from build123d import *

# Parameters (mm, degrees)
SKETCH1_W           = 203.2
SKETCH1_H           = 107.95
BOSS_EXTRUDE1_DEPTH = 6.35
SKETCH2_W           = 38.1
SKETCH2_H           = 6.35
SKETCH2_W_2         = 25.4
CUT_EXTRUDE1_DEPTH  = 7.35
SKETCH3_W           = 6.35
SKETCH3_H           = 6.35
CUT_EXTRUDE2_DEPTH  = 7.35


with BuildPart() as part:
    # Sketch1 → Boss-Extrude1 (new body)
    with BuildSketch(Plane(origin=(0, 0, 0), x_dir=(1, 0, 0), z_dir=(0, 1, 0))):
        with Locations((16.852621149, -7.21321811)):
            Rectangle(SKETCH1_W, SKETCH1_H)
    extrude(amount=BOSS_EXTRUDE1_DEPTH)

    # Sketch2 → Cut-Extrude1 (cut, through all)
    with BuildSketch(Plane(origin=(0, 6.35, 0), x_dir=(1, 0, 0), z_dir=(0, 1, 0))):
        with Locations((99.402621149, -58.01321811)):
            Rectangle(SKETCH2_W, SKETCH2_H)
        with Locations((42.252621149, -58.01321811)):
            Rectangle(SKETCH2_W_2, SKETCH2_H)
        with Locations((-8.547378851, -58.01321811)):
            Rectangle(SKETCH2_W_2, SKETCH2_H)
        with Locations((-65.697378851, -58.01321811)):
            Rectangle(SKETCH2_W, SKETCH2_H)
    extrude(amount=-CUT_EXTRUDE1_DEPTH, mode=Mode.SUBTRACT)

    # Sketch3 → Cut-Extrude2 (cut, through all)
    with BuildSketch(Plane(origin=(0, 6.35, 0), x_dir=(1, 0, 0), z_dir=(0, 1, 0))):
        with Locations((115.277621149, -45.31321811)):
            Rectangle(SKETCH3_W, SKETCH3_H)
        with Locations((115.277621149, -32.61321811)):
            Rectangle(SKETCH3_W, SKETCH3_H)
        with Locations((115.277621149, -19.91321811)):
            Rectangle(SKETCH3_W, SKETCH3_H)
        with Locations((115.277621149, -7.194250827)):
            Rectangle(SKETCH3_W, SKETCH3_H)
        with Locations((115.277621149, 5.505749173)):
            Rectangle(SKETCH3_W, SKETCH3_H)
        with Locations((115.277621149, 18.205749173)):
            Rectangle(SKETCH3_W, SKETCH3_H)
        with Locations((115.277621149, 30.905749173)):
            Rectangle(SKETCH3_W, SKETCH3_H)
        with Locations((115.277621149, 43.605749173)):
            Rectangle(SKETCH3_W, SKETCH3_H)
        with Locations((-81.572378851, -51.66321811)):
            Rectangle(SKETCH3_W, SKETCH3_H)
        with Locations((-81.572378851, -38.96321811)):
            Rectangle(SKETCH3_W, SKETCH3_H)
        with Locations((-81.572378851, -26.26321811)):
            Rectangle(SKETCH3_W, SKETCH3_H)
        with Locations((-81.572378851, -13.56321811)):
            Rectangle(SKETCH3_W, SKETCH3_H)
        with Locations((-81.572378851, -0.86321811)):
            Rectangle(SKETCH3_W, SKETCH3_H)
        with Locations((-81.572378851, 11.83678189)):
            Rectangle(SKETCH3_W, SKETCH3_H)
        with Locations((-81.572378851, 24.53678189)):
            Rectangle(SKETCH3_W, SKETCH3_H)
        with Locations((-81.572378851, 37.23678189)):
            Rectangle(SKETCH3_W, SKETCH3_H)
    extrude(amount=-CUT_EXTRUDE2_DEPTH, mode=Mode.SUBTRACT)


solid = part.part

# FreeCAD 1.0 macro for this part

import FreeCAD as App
import Part
import Sketcher
from FreeCAD import Vector
Q = App.Units.Quantity

doc = App.newDocument("Part")
body = doc.addObject("PartDesign::Body", "Body")

# Sketch on XZ plane
sketch1 = doc.addObject("Sketcher::SketchObject", "Sketch")
body.addObject(sketch1)
sketch1.AttachmentSupport = (doc.XZ_Plane, [""])
sketch1.MapMode = "FlatFace"
sketch1.addGeometry([
    Part.LineSegment(Vector(-85, -47, 0), Vector(-85, 61, 0)),
    Part.LineSegment(Vector(-85, 61, 0), Vector(118, 61, 0)),
    Part.LineSegment(Vector(118, 61, 0), Vector(118, -47, 0)),
    Part.LineSegment(Vector(118, -47, 0), Vector(-85, -47, 0)),
], False)
sketch1.addConstraint([
    Sketcher.Constraint("Coincident", 0, 2, 1, 1),
    Sketcher.Constraint("Coincident", 1, 2, 2, 1),
    Sketcher.Constraint("Coincident", 2, 2, 3, 1),
    Sketcher.Constraint("Coincident", 3, 2, 0, 1),
    Sketcher.Constraint("Vertical", 0),
    Sketcher.Constraint("Horizontal", 1),
    Sketcher.Constraint("Vertical", 2),
    Sketcher.Constraint("Horizontal", 3),
    Sketcher.Constraint("DistanceX", 1, 1, 1, 2, Q("8 in")),
    Sketcher.Constraint("DistanceY", 0, 1, 0, 2, Q("4.25 in")),
    Sketcher.Constraint("DistanceX", 0, 2, -1, 1, 84.747379),
    Sketcher.Constraint("DistanceY", -1, 1, 0, 2, 61.188218),
])
pad1 = doc.addObject("PartDesign::Pad", "Pad")
body.addObject(pad1)
pad1.Profile = sketch1
pad1.Length = Q("0.25 in")
pad1.Reversed = True

# Sketch on XZ plane
sketch2 = doc.addObject("Sketcher::SketchObject", "Sketch001")
body.addObject(sketch2)
sketch2.AttachmentSupport = (doc.XZ_Plane, [""])
sketch2.MapMode = "FlatFace"
sketch2.AttachmentOffset = App.Placement(Vector(0, 0, -0.25 * 25.4), App.Rotation())
sketch2.addGeometry([
    Part.LineSegment(Vector(80, 55, 0), Vector(80, 61, 0)),  # 0
    Part.LineSegment(Vector(80, 61, 0), Vector(118, 61, 0)),  # 1
    Part.LineSegment(Vector(118, 61, 0), Vector(118, 55, 0)),  # 2
    Part.LineSegment(Vector(118, 55, 0), Vector(80, 55, 0)),  # 3
    Part.LineSegment(Vector(30, 55, 0), Vector(30, 61, 0)),  # 4
    Part.LineSegment(Vector(30, 61, 0), Vector(55, 61, 0)),  # 5
    Part.LineSegment(Vector(55, 61, 0), Vector(55, 55, 0)),  # 6
    Part.LineSegment(Vector(55, 55, 0), Vector(30, 55, 0)),  # 7
    Part.LineSegment(Vector(-21, 55, 0), Vector(-21, 61, 0)),  # 8
    Part.LineSegment(Vector(-21, 61, 0), Vector(4, 61, 0)),  # 9
    Part.LineSegment(Vector(4, 61, 0), Vector(4, 55, 0)),  # 10
    Part.LineSegment(Vector(4, 55, 0), Vector(-21, 55, 0)),  # 11
    Part.LineSegment(Vector(-85, 55, 0), Vector(-85, 61, 0)),  # 12
    Part.LineSegment(Vector(-85, 61, 0), Vector(-47, 61, 0)),  # 13
    Part.LineSegment(Vector(-47, 61, 0), Vector(-47, 55, 0)),  # 14
    Part.LineSegment(Vector(-47, 55, 0), Vector(-85, 55, 0)),  # 15
], False)
sketch2.addConstraint([
    Sketcher.Constraint("Coincident", 0, 2, 1, 1),
    Sketcher.Constraint("Coincident", 1, 2, 2, 1),
    Sketcher.Constraint("Coincident", 2, 2, 3, 1),
    Sketcher.Constraint("Coincident", 3, 2, 0, 1),
    Sketcher.Constraint("Coincident", 4, 2, 5, 1),
    Sketcher.Constraint("Coincident", 5, 2, 6, 1),
    Sketcher.Constraint("Coincident", 6, 2, 7, 1),
    Sketcher.Constraint("Coincident", 7, 2, 4, 1),
    Sketcher.Constraint("Coincident", 8, 2, 9, 1),
    Sketcher.Constraint("Coincident", 9, 2, 10, 1),
    Sketcher.Constraint("Coincident", 10, 2, 11, 1),
    Sketcher.Constraint("Coincident", 11, 2, 8, 1),
    Sketcher.Constraint("Coincident", 12, 2, 13, 1),
    Sketcher.Constraint("Coincident", 13, 2, 14, 1),
    Sketcher.Constraint("Coincident", 14, 2, 15, 1),
    Sketcher.Constraint("Coincident", 15, 2, 12, 1),
    Sketcher.Constraint("Vertical", 0),
    Sketcher.Constraint("Horizontal", 1),
    Sketcher.Constraint("Vertical", 2),
    Sketcher.Constraint("Horizontal", 3),
    Sketcher.Constraint("Vertical", 4),
    Sketcher.Constraint("Horizontal", 5),
    Sketcher.Constraint("Vertical", 6),
    Sketcher.Constraint("Horizontal", 7),
    Sketcher.Constraint("Vertical", 8),
    Sketcher.Constraint("Horizontal", 9),
    Sketcher.Constraint("Vertical", 10),
    Sketcher.Constraint("Horizontal", 11),
    Sketcher.Constraint("Vertical", 12),
    Sketcher.Constraint("Horizontal", 13),
    Sketcher.Constraint("Vertical", 14),
    Sketcher.Constraint("Horizontal", 15),
    Sketcher.Constraint("Horizontal", 1, 2, 4, 2),
    Sketcher.Constraint("Horizontal", 3, 2, 6, 2),
    Sketcher.Constraint("Horizontal", 5, 2, 8, 2),
    Sketcher.Constraint("Horizontal", 7, 2, 10, 2),
    Sketcher.Constraint("Horizontal", 9, 2, 12, 2),
    Sketcher.Constraint("Horizontal", 11, 2, 14, 2),
    Sketcher.Constraint("Equal", 7, 9),
    Sketcher.Constraint("Equal", 3, 13),
    Sketcher.Constraint("DistanceX", 5, 1, 5, 2, Q("1 in")),
    Sketcher.Constraint("DistanceX", 1, 1, 1, 2, Q("1.5 in")),
    Sketcher.Constraint("DistanceX", 4, 2, 0, 2, Q("2 in")),
    Sketcher.Constraint("DistanceX", 8, 2, 4, 2, Q("2 in")),
    Sketcher.Constraint("DistanceX", 13, 2, 8, 2, Q("1 in")),
    Sketcher.Constraint("DistanceY", 0, 1, 0, 2, Q("0.25 in")),
    Sketcher.Constraint("DistanceX", -1, 1, 0, 2, 80.352621),
    Sketcher.Constraint("DistanceY", -1, 1, 0, 2, 61.188218),
])
pocket1 = doc.addObject("PartDesign::Pocket", "Pocket")
body.addObject(pocket1)
pocket1.Profile = sketch2
pocket1.Type = "ThroughAll"
pocket1.Reversed = True

# Sketch on XZ plane
sketch3 = doc.addObject("Sketcher::SketchObject", "Sketch002")
body.addObject(sketch3)
sketch3.AttachmentSupport = (doc.XZ_Plane, [""])
sketch3.MapMode = "FlatFace"
sketch3.AttachmentOffset = App.Placement(Vector(0, 0, -0.25 * 25.4), App.Rotation())
sketch3.addGeometry([
    Part.LineSegment(Vector(112, 42, 0), Vector(112, 48, 0)),  # 0
    Part.LineSegment(Vector(112, 48, 0), Vector(118, 48, 0)),  # 1
    Part.LineSegment(Vector(118, 48, 0), Vector(118, 42, 0)),  # 2
    Part.LineSegment(Vector(118, 42, 0), Vector(112, 42, 0)),  # 3
    Part.LineSegment(Vector(112, 29, 0), Vector(112, 36, 0)),  # 4
    Part.LineSegment(Vector(112, 36, 0), Vector(118, 36, 0)),  # 5
    Part.LineSegment(Vector(118, 36, 0), Vector(118, 29, 0)),  # 6
    Part.LineSegment(Vector(118, 29, 0), Vector(112, 29, 0)),  # 7
    Part.LineSegment(Vector(112, 17, 0), Vector(112, 23, 0)),  # 8
    Part.LineSegment(Vector(112, 23, 0), Vector(118, 23, 0)),  # 9
    Part.LineSegment(Vector(118, 23, 0), Vector(118, 17, 0)),  # 10
    Part.LineSegment(Vector(118, 17, 0), Vector(112, 17, 0)),  # 11
    Part.LineSegment(Vector(112, 4, 0), Vector(112, 10, 0)),  # 12
    Part.LineSegment(Vector(112, 10, 0), Vector(118, 10, 0)),  # 13
    Part.LineSegment(Vector(118, 10, 0), Vector(118, 4, 0)),  # 14
    Part.LineSegment(Vector(118, 4, 0), Vector(112, 4, 0)),  # 15
    Part.LineSegment(Vector(112, -9, 0), Vector(112, -2, 0)),  # 16
    Part.LineSegment(Vector(112, -2, 0), Vector(118, -2, 0)),  # 17
    Part.LineSegment(Vector(118, -2, 0), Vector(118, -9, 0)),  # 18
    Part.LineSegment(Vector(118, -9, 0), Vector(112, -9, 0)),  # 19
    Part.LineSegment(Vector(112, -21, 0), Vector(112, -15, 0)),  # 20
    Part.LineSegment(Vector(112, -15, 0), Vector(118, -15, 0)),  # 21
    Part.LineSegment(Vector(118, -15, 0), Vector(118, -21, 0)),  # 22
    Part.LineSegment(Vector(118, -21, 0), Vector(112, -21, 0)),  # 23
    Part.LineSegment(Vector(112, -34, 0), Vector(112, -28, 0)),  # 24
    Part.LineSegment(Vector(112, -28, 0), Vector(118, -28, 0)),  # 25
    Part.LineSegment(Vector(118, -28, 0), Vector(118, -34, 0)),  # 26
    Part.LineSegment(Vector(118, -34, 0), Vector(112, -34, 0)),  # 27
    Part.LineSegment(Vector(112, -47, 0), Vector(112, -40, 0)),  # 28
    Part.LineSegment(Vector(112, -40, 0), Vector(118, -40, 0)),  # 29
    Part.LineSegment(Vector(118, -40, 0), Vector(118, -47, 0)),  # 30
    Part.LineSegment(Vector(118, -47, 0), Vector(112, -47, 0)),  # 31
    Part.LineSegment(Vector(-85, 48, 0), Vector(-85, 55, 0)),  # 32
    Part.LineSegment(Vector(-85, 55, 0), Vector(-78, 55, 0)),  # 33
    Part.LineSegment(Vector(-78, 55, 0), Vector(-78, 48, 0)),  # 34
    Part.LineSegment(Vector(-78, 48, 0), Vector(-85, 48, 0)),  # 35
    Part.LineSegment(Vector(-85, 36, 0), Vector(-85, 42, 0)),  # 36
    Part.LineSegment(Vector(-85, 42, 0), Vector(-78, 42, 0)),  # 37
    Part.LineSegment(Vector(-78, 42, 0), Vector(-78, 36, 0)),  # 38
    Part.LineSegment(Vector(-78, 36, 0), Vector(-85, 36, 0)),  # 39
    Part.LineSegment(Vector(-85, 23, 0), Vector(-85, 29, 0)),  # 40
    Part.LineSegment(Vector(-85, 29, 0), Vector(-78, 29, 0)),  # 41
    Part.LineSegment(Vector(-78, 29, 0), Vector(-78, 23, 0)),  # 42
    Part.LineSegment(Vector(-78, 23, 0), Vector(-85, 23, 0)),  # 43
    Part.LineSegment(Vector(-85, 10, 0), Vector(-85, 17, 0)),  # 44
    Part.LineSegment(Vector(-85, 17, 0), Vector(-78, 17, 0)),  # 45
    Part.LineSegment(Vector(-78, 17, 0), Vector(-78, 10, 0)),  # 46
    Part.LineSegment(Vector(-78, 10, 0), Vector(-85, 10, 0)),  # 47
    Part.LineSegment(Vector(-85, -2, 0), Vector(-85, 4, 0)),  # 48
    Part.LineSegment(Vector(-85, 4, 0), Vector(-78, 4, 0)),  # 49
    Part.LineSegment(Vector(-78, 4, 0), Vector(-78, -2, 0)),  # 50
    Part.LineSegment(Vector(-78, -2, 0), Vector(-85, -2, 0)),  # 51
    Part.LineSegment(Vector(-85, -15, 0), Vector(-85, -9, 0)),  # 52
    Part.LineSegment(Vector(-85, -9, 0), Vector(-78, -9, 0)),  # 53
    Part.LineSegment(Vector(-78, -9, 0), Vector(-78, -15, 0)),  # 54
    Part.LineSegment(Vector(-78, -15, 0), Vector(-85, -15, 0)),  # 55
    Part.LineSegment(Vector(-85, -28, 0), Vector(-85, -21, 0)),  # 56
    Part.LineSegment(Vector(-85, -21, 0), Vector(-78, -21, 0)),  # 57
    Part.LineSegment(Vector(-78, -21, 0), Vector(-78, -28, 0)),  # 58
    Part.LineSegment(Vector(-78, -28, 0), Vector(-85, -28, 0)),  # 59
    Part.LineSegment(Vector(-85, -40, 0), Vector(-85, -34, 0)),  # 60
    Part.LineSegment(Vector(-85, -34, 0), Vector(-78, -34, 0)),  # 61
    Part.LineSegment(Vector(-78, -34, 0), Vector(-78, -40, 0)),  # 62
    Part.LineSegment(Vector(-78, -40, 0), Vector(-85, -40, 0)),  # 63
], False)
sketch3.addConstraint([
    Sketcher.Constraint("Coincident", 0, 2, 1, 1),
    Sketcher.Constraint("Coincident", 1, 2, 2, 1),
    Sketcher.Constraint("Coincident", 2, 2, 3, 1),
    Sketcher.Constraint("Coincident", 3, 2, 0, 1),
    Sketcher.Constraint("Coincident", 4, 2, 5, 1),
    Sketcher.Constraint("Coincident", 5, 2, 6, 1),
    Sketcher.Constraint("Coincident", 6, 2, 7, 1),
    Sketcher.Constraint("Coincident", 7, 2, 4, 1),
    Sketcher.Constraint("Coincident", 8, 2, 9, 1),
    Sketcher.Constraint("Coincident", 9, 2, 10, 1),
    Sketcher.Constraint("Coincident", 10, 2, 11, 1),
    Sketcher.Constraint("Coincident", 11, 2, 8, 1),
    Sketcher.Constraint("Coincident", 12, 2, 13, 1),
    Sketcher.Constraint("Coincident", 13, 2, 14, 1),
    Sketcher.Constraint("Coincident", 14, 2, 15, 1),
    Sketcher.Constraint("Coincident", 15, 2, 12, 1),
    Sketcher.Constraint("Coincident", 16, 2, 17, 1),
    Sketcher.Constraint("Coincident", 17, 2, 18, 1),
    Sketcher.Constraint("Coincident", 18, 2, 19, 1),
    Sketcher.Constraint("Coincident", 19, 2, 16, 1),
    Sketcher.Constraint("Coincident", 20, 2, 21, 1),
    Sketcher.Constraint("Coincident", 21, 2, 22, 1),
    Sketcher.Constraint("Coincident", 22, 2, 23, 1),
    Sketcher.Constraint("Coincident", 23, 2, 20, 1),
    Sketcher.Constraint("Coincident", 24, 2, 25, 1),
    Sketcher.Constraint("Coincident", 25, 2, 26, 1),
    Sketcher.Constraint("Coincident", 26, 2, 27, 1),
    Sketcher.Constraint("Coincident", 27, 2, 24, 1),
    Sketcher.Constraint("Coincident", 28, 2, 29, 1),
    Sketcher.Constraint("Coincident", 29, 2, 30, 1),
    Sketcher.Constraint("Coincident", 30, 2, 31, 1),
    Sketcher.Constraint("Coincident", 31, 2, 28, 1),
    Sketcher.Constraint("Coincident", 32, 2, 33, 1),
    Sketcher.Constraint("Coincident", 33, 2, 34, 1),
    Sketcher.Constraint("Coincident", 34, 2, 35, 1),
    Sketcher.Constraint("Coincident", 35, 2, 32, 1),
    Sketcher.Constraint("Coincident", 36, 2, 37, 1),
    Sketcher.Constraint("Coincident", 37, 2, 38, 1),
    Sketcher.Constraint("Coincident", 38, 2, 39, 1),
    Sketcher.Constraint("Coincident", 39, 2, 36, 1),
    Sketcher.Constraint("Coincident", 40, 2, 41, 1),
    Sketcher.Constraint("Coincident", 41, 2, 42, 1),
    Sketcher.Constraint("Coincident", 42, 2, 43, 1),
    Sketcher.Constraint("Coincident", 43, 2, 40, 1),
    Sketcher.Constraint("Coincident", 44, 2, 45, 1),
    Sketcher.Constraint("Coincident", 45, 2, 46, 1),
    Sketcher.Constraint("Coincident", 46, 2, 47, 1),
    Sketcher.Constraint("Coincident", 47, 2, 44, 1),
    Sketcher.Constraint("Coincident", 48, 2, 49, 1),
    Sketcher.Constraint("Coincident", 49, 2, 50, 1),
    Sketcher.Constraint("Coincident", 50, 2, 51, 1),
    Sketcher.Constraint("Coincident", 51, 2, 48, 1),
    Sketcher.Constraint("Coincident", 52, 2, 53, 1),
    Sketcher.Constraint("Coincident", 53, 2, 54, 1),
    Sketcher.Constraint("Coincident", 54, 2, 55, 1),
    Sketcher.Constraint("Coincident", 55, 2, 52, 1),
    Sketcher.Constraint("Coincident", 56, 2, 57, 1),
    Sketcher.Constraint("Coincident", 57, 2, 58, 1),
    Sketcher.Constraint("Coincident", 58, 2, 59, 1),
    Sketcher.Constraint("Coincident", 59, 2, 56, 1),
    Sketcher.Constraint("Coincident", 60, 2, 61, 1),
    Sketcher.Constraint("Coincident", 61, 2, 62, 1),
    Sketcher.Constraint("Coincident", 62, 2, 63, 1),
    Sketcher.Constraint("Coincident", 63, 2, 60, 1),
    Sketcher.Constraint("Vertical", 0),
    Sketcher.Constraint("Horizontal", 1),
    Sketcher.Constraint("Vertical", 2),
    Sketcher.Constraint("Horizontal", 3),
    Sketcher.Constraint("Vertical", 4),
    Sketcher.Constraint("Horizontal", 5),
    Sketcher.Constraint("Vertical", 6),
    Sketcher.Constraint("Horizontal", 7),
    Sketcher.Constraint("Vertical", 8),
    Sketcher.Constraint("Horizontal", 9),
    Sketcher.Constraint("Vertical", 10),
    Sketcher.Constraint("Horizontal", 11),
    Sketcher.Constraint("Vertical", 12),
    Sketcher.Constraint("Horizontal", 13),
    Sketcher.Constraint("Vertical", 14),
    Sketcher.Constraint("Horizontal", 15),
    Sketcher.Constraint("Vertical", 16),
    Sketcher.Constraint("Horizontal", 17),
    Sketcher.Constraint("Vertical", 18),
    Sketcher.Constraint("Horizontal", 19),
    Sketcher.Constraint("Vertical", 20),
    Sketcher.Constraint("Horizontal", 21),
    Sketcher.Constraint("Vertical", 22),
    Sketcher.Constraint("Horizontal", 23),
    Sketcher.Constraint("Vertical", 24),
    Sketcher.Constraint("Horizontal", 25),
    Sketcher.Constraint("Vertical", 26),
    Sketcher.Constraint("Horizontal", 27),
    Sketcher.Constraint("Vertical", 28),
    Sketcher.Constraint("Horizontal", 29),
    Sketcher.Constraint("Vertical", 30),
    Sketcher.Constraint("Horizontal", 31),
    Sketcher.Constraint("Vertical", 32),
    Sketcher.Constraint("Horizontal", 33),
    Sketcher.Constraint("Vertical", 34),
    Sketcher.Constraint("Horizontal", 35),
    Sketcher.Constraint("Vertical", 36),
    Sketcher.Constraint("Horizontal", 37),
    Sketcher.Constraint("Vertical", 38),
    Sketcher.Constraint("Horizontal", 39),
    Sketcher.Constraint("Vertical", 40),
    Sketcher.Constraint("Horizontal", 41),
    Sketcher.Constraint("Vertical", 42),
    Sketcher.Constraint("Horizontal", 43),
    Sketcher.Constraint("Vertical", 44),
    Sketcher.Constraint("Horizontal", 45),
    Sketcher.Constraint("Vertical", 46),
    Sketcher.Constraint("Horizontal", 47),
    Sketcher.Constraint("Vertical", 48),
    Sketcher.Constraint("Horizontal", 49),
    Sketcher.Constraint("Vertical", 50),
    Sketcher.Constraint("Horizontal", 51),
    Sketcher.Constraint("Vertical", 52),
    Sketcher.Constraint("Horizontal", 53),
    Sketcher.Constraint("Vertical", 54),
    Sketcher.Constraint("Horizontal", 55),
    Sketcher.Constraint("Vertical", 56),
    Sketcher.Constraint("Horizontal", 57),
    Sketcher.Constraint("Vertical", 58),
    Sketcher.Constraint("Horizontal", 59),
    Sketcher.Constraint("Vertical", 60),
    Sketcher.Constraint("Horizontal", 61),
    Sketcher.Constraint("Vertical", 62),
    Sketcher.Constraint("Horizontal", 63),
    Sketcher.Constraint("Horizontal", 1, 2, 34, 2),
    Sketcher.Constraint("Horizontal", 3, 2, 36, 2),
    Sketcher.Constraint("Horizontal", 5, 2, 38, 2),
    Sketcher.Constraint("Horizontal", 7, 2, 40, 2),
    Sketcher.Constraint("Horizontal", 9, 2, 42, 2),
    Sketcher.Constraint("Horizontal", 11, 2, 44, 2),
    Sketcher.Constraint("Vertical", 3, 2, 4, 2),
    Sketcher.Constraint("Vertical", 2, 2, 5, 2),
    Sketcher.Constraint("Vertical", 7, 2, 8, 2),
    Sketcher.Constraint("Vertical", 6, 2, 9, 2),
    Sketcher.Constraint("Vertical", 11, 2, 12, 2),
    Sketcher.Constraint("Vertical", 10, 2, 13, 2),
    Sketcher.Constraint("Vertical", 15, 2, 16, 2),
    Sketcher.Constraint("Vertical", 14, 2, 17, 2),
    Sketcher.Constraint("Vertical", 19, 2, 20, 2),
    Sketcher.Constraint("Vertical", 18, 2, 21, 2),
    Sketcher.Constraint("Vertical", 23, 2, 24, 2),
    Sketcher.Constraint("Vertical", 22, 2, 25, 2),
    Sketcher.Constraint("Vertical", 27, 2, 28, 2),
    Sketcher.Constraint("Vertical", 26, 2, 29, 2),
    Sketcher.Constraint("Vertical", 35, 2, 36, 2),
    Sketcher.Constraint("Vertical", 34, 2, 37, 2),
    Sketcher.Constraint("Vertical", 39, 2, 40, 2),
    Sketcher.Constraint("Vertical", 38, 2, 41, 2),
    Sketcher.Constraint("Vertical", 43, 2, 44, 2),
    Sketcher.Constraint("Vertical", 42, 2, 45, 2),
    Sketcher.Constraint("Vertical", 47, 2, 48, 2),
    Sketcher.Constraint("Vertical", 46, 2, 49, 2),
    Sketcher.Constraint("Vertical", 51, 2, 52, 2),
    Sketcher.Constraint("Vertical", 50, 2, 53, 2),
    Sketcher.Constraint("Vertical", 55, 2, 56, 2),
    Sketcher.Constraint("Vertical", 54, 2, 57, 2),
    Sketcher.Constraint("Vertical", 59, 2, 60, 2),
    Sketcher.Constraint("Vertical", 58, 2, 61, 2),
    Sketcher.Constraint("Equal", 31, 33),
    Sketcher.Constraint("Equal", 63, 0),
    Sketcher.Constraint("Equal", 2, 4),
    Sketcher.Constraint("Equal", 6, 8),
    Sketcher.Constraint("Equal", 10, 12),
    Sketcher.Constraint("Equal", 14, 16),
    Sketcher.Constraint("Equal", 18, 20),
    Sketcher.Constraint("Equal", 22, 24),
    Sketcher.Constraint("Equal", 26, 28),
    Sketcher.Constraint("Equal", 30, 32),
    Sketcher.Constraint("Equal", 34, 36),
    Sketcher.Constraint("Equal", 38, 40),
    Sketcher.Constraint("Equal", 42, 44),
    Sketcher.Constraint("Equal", 46, 48),
    Sketcher.Constraint("Equal", 50, 52),
    Sketcher.Constraint("Equal", 54, 56),
    Sketcher.Constraint("Equal", 58, 60),
    Sketcher.Constraint("DistanceX", 1, 1, 1, 2, Q("0.25 in")),
    Sketcher.Constraint("DistanceX", -1, 1, 0, 2, 112.102621),
    Sketcher.Constraint("DistanceY", -1, 1, 0, 2, 48.488218),
    Sketcher.Constraint("DistanceY", -1, 1, 12, 2, 10.369251),
    Sketcher.Constraint("DistanceY", 16, 2, -1, 1, 2.330749),
    Sketcher.Constraint("DistanceY", 20, 2, -1, 1, 15.030749),
    Sketcher.Constraint("DistanceY", 24, 2, -1, 1, 27.730749),
    Sketcher.Constraint("DistanceY", 28, 2, -1, 1, 40.430749),
    Sketcher.Constraint("DistanceX", 32, 2, -1, 1, 84.747379),
    Sketcher.Constraint("DistanceY", -1, 1, 48, 2, 4.038218),
    Sketcher.Constraint("DistanceY", 52, 2, -1, 1, 8.661782),
    Sketcher.Constraint("DistanceY", 56, 2, -1, 1, 21.361782),
    Sketcher.Constraint("DistanceY", 60, 2, -1, 1, 34.061782),
])
pocket2 = doc.addObject("PartDesign::Pocket", "Pocket001")
body.addObject(pocket2)
pocket2.Profile = sketch3
pocket2.Type = "ThroughAll"
pocket2.Reversed = True

doc.recompute()
